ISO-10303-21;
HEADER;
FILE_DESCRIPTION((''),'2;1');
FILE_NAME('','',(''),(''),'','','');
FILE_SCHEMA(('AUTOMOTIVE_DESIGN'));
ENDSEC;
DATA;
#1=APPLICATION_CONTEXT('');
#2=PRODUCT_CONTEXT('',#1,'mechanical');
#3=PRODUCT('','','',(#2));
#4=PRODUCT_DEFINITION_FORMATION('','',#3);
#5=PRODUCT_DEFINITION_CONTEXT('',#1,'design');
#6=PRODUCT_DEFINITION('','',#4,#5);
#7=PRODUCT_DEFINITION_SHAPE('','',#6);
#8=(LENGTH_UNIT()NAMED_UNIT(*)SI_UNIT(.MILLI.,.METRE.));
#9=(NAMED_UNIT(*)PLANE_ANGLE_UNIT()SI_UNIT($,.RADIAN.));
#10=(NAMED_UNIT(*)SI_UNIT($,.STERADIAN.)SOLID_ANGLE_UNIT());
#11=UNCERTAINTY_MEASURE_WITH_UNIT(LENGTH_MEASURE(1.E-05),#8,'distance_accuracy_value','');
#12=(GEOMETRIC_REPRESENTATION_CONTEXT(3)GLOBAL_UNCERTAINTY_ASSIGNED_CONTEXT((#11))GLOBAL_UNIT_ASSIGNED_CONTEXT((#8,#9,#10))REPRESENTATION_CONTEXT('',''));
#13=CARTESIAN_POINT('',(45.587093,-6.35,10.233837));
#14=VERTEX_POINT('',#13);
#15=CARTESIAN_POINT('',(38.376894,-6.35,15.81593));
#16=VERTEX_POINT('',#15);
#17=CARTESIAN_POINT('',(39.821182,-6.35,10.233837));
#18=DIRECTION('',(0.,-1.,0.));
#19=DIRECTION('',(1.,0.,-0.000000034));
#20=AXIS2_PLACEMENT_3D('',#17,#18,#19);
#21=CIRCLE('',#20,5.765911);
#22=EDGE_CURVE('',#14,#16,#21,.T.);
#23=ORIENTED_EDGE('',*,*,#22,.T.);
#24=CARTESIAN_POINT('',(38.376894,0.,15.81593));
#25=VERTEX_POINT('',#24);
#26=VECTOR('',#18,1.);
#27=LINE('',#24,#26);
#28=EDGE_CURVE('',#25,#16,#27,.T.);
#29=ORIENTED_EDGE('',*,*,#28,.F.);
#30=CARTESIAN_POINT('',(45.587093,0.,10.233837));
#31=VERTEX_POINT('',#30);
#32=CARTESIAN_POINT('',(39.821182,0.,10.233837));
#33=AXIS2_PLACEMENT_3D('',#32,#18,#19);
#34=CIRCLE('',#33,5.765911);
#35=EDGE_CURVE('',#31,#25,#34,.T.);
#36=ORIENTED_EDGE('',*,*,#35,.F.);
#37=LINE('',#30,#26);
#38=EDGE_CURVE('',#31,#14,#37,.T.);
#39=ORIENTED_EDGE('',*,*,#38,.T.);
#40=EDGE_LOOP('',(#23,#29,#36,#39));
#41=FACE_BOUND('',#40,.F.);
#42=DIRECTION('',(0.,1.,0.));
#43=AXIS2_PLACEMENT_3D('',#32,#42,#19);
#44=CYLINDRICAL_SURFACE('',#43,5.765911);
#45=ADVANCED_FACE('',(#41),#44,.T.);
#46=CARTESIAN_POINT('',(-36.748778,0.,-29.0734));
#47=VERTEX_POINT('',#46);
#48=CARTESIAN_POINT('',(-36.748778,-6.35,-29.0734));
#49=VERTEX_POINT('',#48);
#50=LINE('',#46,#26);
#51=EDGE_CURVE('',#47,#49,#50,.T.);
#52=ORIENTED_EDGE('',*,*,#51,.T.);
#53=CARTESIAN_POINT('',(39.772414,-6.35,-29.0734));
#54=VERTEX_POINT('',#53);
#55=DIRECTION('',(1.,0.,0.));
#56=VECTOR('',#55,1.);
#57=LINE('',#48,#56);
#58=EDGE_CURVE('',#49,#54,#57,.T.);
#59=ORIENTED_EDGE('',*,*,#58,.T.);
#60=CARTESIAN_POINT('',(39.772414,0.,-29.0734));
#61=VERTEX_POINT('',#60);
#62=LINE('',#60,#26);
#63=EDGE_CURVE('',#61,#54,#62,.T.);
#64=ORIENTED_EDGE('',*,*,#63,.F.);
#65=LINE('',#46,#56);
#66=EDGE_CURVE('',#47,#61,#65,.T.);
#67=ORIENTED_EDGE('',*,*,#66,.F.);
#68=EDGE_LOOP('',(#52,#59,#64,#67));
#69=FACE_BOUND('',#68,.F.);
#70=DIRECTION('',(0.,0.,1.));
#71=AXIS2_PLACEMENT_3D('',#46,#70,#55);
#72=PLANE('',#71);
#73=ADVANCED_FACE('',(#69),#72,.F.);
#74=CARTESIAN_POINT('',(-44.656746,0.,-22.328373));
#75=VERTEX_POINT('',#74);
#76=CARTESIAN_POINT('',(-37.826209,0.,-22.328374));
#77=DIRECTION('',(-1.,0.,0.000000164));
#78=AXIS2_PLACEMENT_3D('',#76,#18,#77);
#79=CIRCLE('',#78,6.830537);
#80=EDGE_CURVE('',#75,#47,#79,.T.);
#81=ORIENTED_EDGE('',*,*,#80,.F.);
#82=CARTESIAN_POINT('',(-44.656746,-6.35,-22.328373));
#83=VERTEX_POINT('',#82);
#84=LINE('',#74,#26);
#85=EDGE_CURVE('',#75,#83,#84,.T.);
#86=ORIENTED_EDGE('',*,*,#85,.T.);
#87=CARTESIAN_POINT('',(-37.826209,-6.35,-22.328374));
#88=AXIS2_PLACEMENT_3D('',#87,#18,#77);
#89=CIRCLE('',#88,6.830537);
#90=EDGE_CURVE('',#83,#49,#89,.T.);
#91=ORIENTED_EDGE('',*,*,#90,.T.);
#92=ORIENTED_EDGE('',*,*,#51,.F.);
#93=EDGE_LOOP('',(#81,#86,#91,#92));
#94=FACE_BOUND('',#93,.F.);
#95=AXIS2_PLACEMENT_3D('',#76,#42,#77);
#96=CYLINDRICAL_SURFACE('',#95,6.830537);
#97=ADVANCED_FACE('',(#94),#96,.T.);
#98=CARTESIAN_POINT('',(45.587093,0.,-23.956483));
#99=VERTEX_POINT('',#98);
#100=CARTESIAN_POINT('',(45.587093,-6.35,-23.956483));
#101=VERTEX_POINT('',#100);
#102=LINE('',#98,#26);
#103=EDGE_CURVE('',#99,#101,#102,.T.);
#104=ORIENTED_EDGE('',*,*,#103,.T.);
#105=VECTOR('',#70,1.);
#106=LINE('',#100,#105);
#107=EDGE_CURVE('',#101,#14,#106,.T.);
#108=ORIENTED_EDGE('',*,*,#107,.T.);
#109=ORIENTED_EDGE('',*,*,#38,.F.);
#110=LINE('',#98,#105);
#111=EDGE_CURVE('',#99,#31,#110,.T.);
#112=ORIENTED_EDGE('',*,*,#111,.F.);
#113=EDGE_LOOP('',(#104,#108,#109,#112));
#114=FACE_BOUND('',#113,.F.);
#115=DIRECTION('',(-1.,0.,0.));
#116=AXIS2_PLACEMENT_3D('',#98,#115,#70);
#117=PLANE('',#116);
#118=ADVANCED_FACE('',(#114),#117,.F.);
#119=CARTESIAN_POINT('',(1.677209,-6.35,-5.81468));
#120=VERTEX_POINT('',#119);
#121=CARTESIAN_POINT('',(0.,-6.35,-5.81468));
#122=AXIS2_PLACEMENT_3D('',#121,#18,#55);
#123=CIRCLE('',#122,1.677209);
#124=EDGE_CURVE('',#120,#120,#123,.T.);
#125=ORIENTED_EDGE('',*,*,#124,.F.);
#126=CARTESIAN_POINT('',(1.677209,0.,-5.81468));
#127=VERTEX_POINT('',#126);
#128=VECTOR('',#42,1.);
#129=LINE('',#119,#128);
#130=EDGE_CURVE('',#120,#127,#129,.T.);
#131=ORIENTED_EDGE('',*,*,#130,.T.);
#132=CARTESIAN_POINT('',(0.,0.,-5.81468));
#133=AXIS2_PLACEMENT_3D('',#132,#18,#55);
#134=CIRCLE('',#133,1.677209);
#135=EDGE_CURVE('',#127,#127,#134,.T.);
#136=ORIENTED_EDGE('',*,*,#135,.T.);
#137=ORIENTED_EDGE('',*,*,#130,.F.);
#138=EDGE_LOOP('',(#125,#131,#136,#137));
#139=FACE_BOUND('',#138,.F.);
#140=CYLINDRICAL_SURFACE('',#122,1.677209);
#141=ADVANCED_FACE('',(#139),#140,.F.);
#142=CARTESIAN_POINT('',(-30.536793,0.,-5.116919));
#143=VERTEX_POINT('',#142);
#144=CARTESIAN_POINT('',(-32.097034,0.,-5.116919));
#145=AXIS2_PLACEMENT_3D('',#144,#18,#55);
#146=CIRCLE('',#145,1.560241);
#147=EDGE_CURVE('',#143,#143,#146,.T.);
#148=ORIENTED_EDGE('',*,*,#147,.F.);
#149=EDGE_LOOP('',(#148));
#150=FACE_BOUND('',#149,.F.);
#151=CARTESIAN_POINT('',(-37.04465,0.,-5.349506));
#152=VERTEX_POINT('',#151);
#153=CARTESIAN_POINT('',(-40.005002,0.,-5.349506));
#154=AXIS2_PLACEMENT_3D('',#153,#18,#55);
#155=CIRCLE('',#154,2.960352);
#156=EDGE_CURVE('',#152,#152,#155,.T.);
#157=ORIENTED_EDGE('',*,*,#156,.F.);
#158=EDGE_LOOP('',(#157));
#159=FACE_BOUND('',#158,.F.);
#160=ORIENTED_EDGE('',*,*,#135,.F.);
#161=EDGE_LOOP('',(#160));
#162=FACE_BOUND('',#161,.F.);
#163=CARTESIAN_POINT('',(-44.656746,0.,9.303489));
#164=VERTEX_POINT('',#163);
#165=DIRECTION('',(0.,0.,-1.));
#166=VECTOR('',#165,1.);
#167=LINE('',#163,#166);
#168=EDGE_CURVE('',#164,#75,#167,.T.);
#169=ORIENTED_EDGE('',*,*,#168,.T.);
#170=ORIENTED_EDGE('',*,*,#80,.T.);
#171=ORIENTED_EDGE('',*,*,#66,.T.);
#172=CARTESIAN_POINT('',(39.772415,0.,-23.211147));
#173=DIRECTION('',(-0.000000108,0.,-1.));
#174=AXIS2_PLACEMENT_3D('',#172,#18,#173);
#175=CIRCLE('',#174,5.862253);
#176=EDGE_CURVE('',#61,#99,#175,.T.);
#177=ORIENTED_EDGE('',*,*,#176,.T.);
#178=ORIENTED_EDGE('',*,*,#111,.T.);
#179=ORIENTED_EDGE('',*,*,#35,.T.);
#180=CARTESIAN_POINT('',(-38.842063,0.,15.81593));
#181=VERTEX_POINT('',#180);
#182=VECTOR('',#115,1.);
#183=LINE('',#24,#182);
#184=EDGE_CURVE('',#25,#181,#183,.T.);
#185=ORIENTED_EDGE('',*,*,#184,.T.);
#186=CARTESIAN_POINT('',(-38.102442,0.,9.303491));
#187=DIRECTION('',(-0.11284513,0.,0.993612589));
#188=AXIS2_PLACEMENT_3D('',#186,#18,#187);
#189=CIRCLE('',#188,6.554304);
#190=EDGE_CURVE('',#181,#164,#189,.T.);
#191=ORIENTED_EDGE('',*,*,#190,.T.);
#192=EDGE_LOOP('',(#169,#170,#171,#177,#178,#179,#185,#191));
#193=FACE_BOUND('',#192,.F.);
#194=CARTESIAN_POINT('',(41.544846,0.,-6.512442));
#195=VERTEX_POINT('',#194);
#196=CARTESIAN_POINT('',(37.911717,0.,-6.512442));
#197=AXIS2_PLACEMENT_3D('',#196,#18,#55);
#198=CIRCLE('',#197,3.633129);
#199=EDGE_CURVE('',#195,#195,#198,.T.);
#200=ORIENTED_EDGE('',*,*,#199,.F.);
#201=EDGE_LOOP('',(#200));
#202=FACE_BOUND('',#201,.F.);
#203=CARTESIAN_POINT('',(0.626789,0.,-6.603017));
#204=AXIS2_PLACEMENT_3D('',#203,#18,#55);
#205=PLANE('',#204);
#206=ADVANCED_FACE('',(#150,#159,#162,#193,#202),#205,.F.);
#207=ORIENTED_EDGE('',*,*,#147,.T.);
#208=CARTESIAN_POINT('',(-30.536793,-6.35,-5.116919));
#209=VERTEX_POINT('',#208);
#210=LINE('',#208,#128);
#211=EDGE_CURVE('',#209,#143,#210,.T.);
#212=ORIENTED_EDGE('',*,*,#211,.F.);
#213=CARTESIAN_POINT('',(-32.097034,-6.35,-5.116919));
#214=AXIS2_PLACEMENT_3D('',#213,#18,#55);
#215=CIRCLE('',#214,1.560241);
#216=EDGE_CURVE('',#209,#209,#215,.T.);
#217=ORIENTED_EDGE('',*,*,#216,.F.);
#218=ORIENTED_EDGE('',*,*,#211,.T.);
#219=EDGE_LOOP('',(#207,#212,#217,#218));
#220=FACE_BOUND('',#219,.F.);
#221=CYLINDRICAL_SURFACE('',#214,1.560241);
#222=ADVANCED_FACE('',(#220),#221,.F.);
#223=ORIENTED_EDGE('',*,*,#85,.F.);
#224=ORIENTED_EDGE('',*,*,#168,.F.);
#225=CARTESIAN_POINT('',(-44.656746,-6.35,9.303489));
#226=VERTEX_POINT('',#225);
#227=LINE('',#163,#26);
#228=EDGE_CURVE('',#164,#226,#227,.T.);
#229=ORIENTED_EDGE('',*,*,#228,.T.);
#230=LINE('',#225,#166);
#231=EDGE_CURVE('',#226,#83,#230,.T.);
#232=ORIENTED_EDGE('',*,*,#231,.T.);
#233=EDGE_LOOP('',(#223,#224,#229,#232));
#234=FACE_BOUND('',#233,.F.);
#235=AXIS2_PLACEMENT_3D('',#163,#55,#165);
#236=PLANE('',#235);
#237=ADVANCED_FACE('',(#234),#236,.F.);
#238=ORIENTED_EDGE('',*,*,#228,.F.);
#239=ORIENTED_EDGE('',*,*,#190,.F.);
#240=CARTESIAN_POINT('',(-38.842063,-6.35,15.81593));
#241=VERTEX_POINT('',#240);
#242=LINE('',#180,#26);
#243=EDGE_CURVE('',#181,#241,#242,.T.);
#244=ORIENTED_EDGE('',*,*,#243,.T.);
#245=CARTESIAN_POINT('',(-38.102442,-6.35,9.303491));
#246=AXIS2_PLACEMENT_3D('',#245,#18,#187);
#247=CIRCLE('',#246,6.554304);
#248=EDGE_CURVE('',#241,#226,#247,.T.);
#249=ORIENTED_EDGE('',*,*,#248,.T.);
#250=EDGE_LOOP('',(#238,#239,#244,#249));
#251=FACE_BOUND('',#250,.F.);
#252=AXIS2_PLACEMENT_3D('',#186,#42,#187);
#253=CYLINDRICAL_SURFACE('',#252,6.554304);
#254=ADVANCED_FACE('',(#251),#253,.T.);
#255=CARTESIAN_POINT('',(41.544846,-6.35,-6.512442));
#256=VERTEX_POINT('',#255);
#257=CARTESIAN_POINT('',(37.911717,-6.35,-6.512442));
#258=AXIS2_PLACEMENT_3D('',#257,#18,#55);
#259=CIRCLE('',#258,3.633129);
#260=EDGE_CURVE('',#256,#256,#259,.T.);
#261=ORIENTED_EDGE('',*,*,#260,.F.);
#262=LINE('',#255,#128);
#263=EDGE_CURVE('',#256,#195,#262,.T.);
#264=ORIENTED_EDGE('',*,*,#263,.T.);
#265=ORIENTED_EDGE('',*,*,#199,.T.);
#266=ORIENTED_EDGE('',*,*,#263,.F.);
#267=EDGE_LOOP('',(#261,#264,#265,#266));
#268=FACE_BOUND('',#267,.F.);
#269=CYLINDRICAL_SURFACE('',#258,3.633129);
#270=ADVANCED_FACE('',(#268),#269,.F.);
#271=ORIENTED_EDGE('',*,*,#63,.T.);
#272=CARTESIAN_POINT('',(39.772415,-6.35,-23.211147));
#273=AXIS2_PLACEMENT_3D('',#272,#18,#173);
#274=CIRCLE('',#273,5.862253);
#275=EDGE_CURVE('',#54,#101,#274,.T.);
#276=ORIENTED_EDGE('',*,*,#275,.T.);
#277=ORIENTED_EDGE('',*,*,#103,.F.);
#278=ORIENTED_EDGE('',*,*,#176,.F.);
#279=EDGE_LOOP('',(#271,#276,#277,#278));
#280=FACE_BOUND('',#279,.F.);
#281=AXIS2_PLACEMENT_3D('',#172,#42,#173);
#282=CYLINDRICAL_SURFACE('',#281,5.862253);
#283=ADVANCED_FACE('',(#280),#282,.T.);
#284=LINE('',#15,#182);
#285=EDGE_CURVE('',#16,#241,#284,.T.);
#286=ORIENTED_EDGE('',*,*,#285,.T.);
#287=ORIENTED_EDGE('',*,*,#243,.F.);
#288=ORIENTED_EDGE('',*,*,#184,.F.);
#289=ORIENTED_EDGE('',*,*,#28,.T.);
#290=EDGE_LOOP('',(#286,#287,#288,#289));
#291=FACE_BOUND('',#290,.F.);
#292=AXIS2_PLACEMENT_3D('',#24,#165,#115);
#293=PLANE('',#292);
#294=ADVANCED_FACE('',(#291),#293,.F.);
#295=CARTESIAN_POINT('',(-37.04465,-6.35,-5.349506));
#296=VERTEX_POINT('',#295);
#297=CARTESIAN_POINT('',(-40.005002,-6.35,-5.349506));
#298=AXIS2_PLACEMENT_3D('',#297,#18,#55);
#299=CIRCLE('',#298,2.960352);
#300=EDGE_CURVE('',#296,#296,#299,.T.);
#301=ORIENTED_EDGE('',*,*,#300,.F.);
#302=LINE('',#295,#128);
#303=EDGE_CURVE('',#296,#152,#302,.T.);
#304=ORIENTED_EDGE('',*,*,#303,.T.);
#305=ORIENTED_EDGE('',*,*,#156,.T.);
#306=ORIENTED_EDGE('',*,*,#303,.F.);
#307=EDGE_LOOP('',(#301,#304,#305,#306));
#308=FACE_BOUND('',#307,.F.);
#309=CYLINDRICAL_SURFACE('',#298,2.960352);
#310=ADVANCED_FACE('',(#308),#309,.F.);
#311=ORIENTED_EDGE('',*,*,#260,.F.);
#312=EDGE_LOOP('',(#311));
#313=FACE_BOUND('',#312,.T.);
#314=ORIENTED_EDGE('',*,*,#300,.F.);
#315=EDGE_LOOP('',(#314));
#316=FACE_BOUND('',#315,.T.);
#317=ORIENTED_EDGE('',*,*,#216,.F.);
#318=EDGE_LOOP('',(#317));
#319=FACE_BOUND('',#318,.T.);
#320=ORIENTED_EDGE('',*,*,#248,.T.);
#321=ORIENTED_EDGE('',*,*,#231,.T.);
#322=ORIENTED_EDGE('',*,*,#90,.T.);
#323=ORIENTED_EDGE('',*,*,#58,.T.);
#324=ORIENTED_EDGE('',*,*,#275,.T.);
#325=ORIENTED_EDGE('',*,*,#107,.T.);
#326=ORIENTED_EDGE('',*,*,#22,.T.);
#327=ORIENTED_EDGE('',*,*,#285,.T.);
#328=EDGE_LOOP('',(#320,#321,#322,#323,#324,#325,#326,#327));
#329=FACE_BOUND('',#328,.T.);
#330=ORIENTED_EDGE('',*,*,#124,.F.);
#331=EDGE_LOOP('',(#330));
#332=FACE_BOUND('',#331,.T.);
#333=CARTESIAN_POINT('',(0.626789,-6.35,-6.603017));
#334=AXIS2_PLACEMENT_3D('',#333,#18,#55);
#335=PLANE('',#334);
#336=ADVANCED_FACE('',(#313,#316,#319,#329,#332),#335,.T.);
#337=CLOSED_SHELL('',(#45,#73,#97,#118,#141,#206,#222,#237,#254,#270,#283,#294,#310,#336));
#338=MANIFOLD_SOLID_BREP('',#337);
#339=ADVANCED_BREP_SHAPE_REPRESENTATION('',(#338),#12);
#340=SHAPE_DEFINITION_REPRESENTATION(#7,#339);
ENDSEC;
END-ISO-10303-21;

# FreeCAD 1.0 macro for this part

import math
import FreeCAD as App
import Part
import Sketcher
Q = App.Units.Quantity

doc = App.newDocument("Part")
body = doc.addObject("PartDesign::Body", "Body")

# Sketch on XZ plane
sketch1 = doc.addObject("Sketcher::SketchObject", "Sketch")
body.addObject(sketch1)
sketch1.AttachmentSupport = (doc.XZ_Plane, [""])
sketch1.MapMode = "FlatFace"
sketch1.addGeometry(Part.ArcOfCircle(Part.Circle(App.Vector(-38, 9, 0), App.Vector(0, 0, 1), 7), math.radians(96), math.radians(180)), False)
sketch1.addGeometry(Part.LineSegment(App.Vector(-45, 9, 0), App.Vector(-45, -22, 0)), False)
sketch1.addGeometry(Part.ArcOfCircle(Part.Circle(App.Vector(-38, -22, 0), App.Vector(0, 0, 1), 7), math.radians(180), math.radians(279)), False)
sketch1.addGeometry(Part.LineSegment(App.Vector(-37, -29, 0), App.Vector(40, -29, 0)), False)
sketch1.addGeometry(Part.ArcOfCircle(Part.Circle(App.Vector(40, -23, 0), App.Vector(0, 0, 1), 6), math.radians(-90), math.radians(-7)), False)
sketch1.addGeometry(Part.LineSegment(App.Vector(46, -24, 0), App.Vector(46, 10, 0)), False)
sketch1.addGeometry(Part.ArcOfCircle(Part.Circle(App.Vector(40, 10, 0), App.Vector(0, 0, 1), 6), math.radians(0), math.radians(105)), False)
sketch1.addGeometry(Part.LineSegment(App.Vector(38, 16, 0), App.Vector(-39, 16, 0)), False)
sketch1.addConstraint(Sketcher.Constraint("Tangent", 0, 2, 1, 1))
sketch1.addConstraint(Sketcher.Constraint("Tangent", 1, 2, 2, 1))
sketch1.addConstraint(Sketcher.Constraint("Coincident", 2, 2, 3, 1))
sketch1.addConstraint(Sketcher.Constraint("Tangent", 3, 2, 4, 1))
sketch1.addConstraint(Sketcher.Constraint("Coincident", 4, 2, 5, 1))
sketch1.addConstraint(Sketcher.Constraint("Tangent", 5, 2, 6, 1))
sketch1.addConstraint(Sketcher.Constraint("Coincident", 6, 2, 7, 1))
sketch1.addConstraint(Sketcher.Constraint("Coincident", 7, 2, 0, 1))
sketch1.addConstraint(Sketcher.Constraint("Vertical", 1))
sketch1.addConstraint(Sketcher.Constraint("Horizontal", 3))
sketch1.addConstraint(Sketcher.Constraint("Vertical", 5))
sketch1.addConstraint(Sketcher.Constraint("Horizontal", 7))
sketch1.addConstraint(Sketcher.Constraint("Radius", 6, 5.765911))
sketch1.addConstraint(Sketcher.Constraint("Radius", 0, 6.554304))
sketch1.addConstraint(Sketcher.Constraint("Radius", 2, 6.830537))
sketch1.addConstraint(Sketcher.Constraint("Radius", 4, 5.862253))
sketch1.addConstraint(Sketcher.Constraint("DistanceX", 3, 1, 3, 2, 76.521192))
sketch1.addConstraint(Sketcher.Constraint("DistanceY", 1, 2, 1, 1, 31.631862))
sketch1.addConstraint(Sketcher.Constraint("DistanceY", 5, 1, 5, 2, 34.19032))
sketch1.addConstraint(Sketcher.Constraint("DistanceY", 2, 2, -1, 1, 29.0734))
sketch1.addConstraint(Sketcher.Constraint("DistanceX", 6, 2, 5, 2, 7.210199))
sketch1.addConstraint(Sketcher.Constraint("DistanceX", 7, 2, 7, 1, 77.218957))
sketch1.addConstraint(Sketcher.Constraint("DistanceX", 0, 3, -1, 1, 38.102442))
sketch1.addConstraint(Sketcher.Constraint("DistanceY", -1, 1, 0, 3, 9.303491))
pad1 = doc.addObject("PartDesign::Pad", "Pad")
body.addObject(pad1)
pad1.Profile = sketch1
pad1.Length = Q("0.25 in")

# Sketch on XZ plane
sketch2 = doc.addObject("Sketcher::SketchObject", "Sketch001")
body.addObject(sketch2)
sketch2.AttachmentSupport = (doc.XZ_Plane, [""])
sketch2.MapMode = "FlatFace"
sketch2.AttachmentOffset = App.Placement(App.Vector(0, 0, 0.25 * 25.4), App.Rotation())
sketch2.addGeometry(Part.Circle(App.Vector(-40, -5.3, 0), App.Vector(0, 0, 1), 3), False)
sketch2.addGeometry(Part.Circle(App.Vector(-32.1, -5.1, 0), App.Vector(0, 0, 1), 1.6), False)
sketch2.addGeometry(Part.Circle(App.Vector(0, -5.8, 0), App.Vector(0, 0, 1), 1.7), False)
sketch2.addGeometry(Part.Circle(App.Vector(37.9, -6.5, 0), App.Vector(0, 0, 1), 3.6), False)
sketch2.addConstraint(Sketcher.Constraint("PointOnObject", 2, 3, -2))
sketch2.addConstraint(Sketcher.Constraint("Diameter", 1, 3.120482))
sketch2.addConstraint(Sketcher.Constraint("DistanceX", 0, 3, -1, 1, Q("1.5750001 in")))
sketch2.addConstraint(Sketcher.Constraint("Diameter", 0, 5.920704))
sketch2.addConstraint(Sketcher.Constraint("Diameter", 2, 3.354418))
sketch2.addConstraint(Sketcher.Constraint("Diameter", 3, 7.266258))
sketch2.addConstraint(Sketcher.Constraint("DistanceY", 1, 3, -1, 1, 5.116919))
sketch2.addConstraint(Sketcher.Constraint("DistanceY", 2, 3, -1, 1, 5.81468))
sketch2.addConstraint(Sketcher.Constraint("DistanceY", 3, 3, 2, 3, 0.697762))
sketch2.addConstraint(Sketcher.Constraint("DistanceX", 1, 3, 3, 3, 70.008751))
sketch2.addConstraint(Sketcher.Constraint("DistanceX", 0, 3, 3, 3, 77.916719))
sketch2.addConstraint(Sketcher.Constraint("DistanceY", 0, 3, -1, 1, 5.349506))
pocket1 = doc.addObject("PartDesign::Pocket", "Pocket")
body.addObject(pocket1)
pocket1.Profile = sketch2
pocket1.Length = Q("1 in")

doc.recompute()
